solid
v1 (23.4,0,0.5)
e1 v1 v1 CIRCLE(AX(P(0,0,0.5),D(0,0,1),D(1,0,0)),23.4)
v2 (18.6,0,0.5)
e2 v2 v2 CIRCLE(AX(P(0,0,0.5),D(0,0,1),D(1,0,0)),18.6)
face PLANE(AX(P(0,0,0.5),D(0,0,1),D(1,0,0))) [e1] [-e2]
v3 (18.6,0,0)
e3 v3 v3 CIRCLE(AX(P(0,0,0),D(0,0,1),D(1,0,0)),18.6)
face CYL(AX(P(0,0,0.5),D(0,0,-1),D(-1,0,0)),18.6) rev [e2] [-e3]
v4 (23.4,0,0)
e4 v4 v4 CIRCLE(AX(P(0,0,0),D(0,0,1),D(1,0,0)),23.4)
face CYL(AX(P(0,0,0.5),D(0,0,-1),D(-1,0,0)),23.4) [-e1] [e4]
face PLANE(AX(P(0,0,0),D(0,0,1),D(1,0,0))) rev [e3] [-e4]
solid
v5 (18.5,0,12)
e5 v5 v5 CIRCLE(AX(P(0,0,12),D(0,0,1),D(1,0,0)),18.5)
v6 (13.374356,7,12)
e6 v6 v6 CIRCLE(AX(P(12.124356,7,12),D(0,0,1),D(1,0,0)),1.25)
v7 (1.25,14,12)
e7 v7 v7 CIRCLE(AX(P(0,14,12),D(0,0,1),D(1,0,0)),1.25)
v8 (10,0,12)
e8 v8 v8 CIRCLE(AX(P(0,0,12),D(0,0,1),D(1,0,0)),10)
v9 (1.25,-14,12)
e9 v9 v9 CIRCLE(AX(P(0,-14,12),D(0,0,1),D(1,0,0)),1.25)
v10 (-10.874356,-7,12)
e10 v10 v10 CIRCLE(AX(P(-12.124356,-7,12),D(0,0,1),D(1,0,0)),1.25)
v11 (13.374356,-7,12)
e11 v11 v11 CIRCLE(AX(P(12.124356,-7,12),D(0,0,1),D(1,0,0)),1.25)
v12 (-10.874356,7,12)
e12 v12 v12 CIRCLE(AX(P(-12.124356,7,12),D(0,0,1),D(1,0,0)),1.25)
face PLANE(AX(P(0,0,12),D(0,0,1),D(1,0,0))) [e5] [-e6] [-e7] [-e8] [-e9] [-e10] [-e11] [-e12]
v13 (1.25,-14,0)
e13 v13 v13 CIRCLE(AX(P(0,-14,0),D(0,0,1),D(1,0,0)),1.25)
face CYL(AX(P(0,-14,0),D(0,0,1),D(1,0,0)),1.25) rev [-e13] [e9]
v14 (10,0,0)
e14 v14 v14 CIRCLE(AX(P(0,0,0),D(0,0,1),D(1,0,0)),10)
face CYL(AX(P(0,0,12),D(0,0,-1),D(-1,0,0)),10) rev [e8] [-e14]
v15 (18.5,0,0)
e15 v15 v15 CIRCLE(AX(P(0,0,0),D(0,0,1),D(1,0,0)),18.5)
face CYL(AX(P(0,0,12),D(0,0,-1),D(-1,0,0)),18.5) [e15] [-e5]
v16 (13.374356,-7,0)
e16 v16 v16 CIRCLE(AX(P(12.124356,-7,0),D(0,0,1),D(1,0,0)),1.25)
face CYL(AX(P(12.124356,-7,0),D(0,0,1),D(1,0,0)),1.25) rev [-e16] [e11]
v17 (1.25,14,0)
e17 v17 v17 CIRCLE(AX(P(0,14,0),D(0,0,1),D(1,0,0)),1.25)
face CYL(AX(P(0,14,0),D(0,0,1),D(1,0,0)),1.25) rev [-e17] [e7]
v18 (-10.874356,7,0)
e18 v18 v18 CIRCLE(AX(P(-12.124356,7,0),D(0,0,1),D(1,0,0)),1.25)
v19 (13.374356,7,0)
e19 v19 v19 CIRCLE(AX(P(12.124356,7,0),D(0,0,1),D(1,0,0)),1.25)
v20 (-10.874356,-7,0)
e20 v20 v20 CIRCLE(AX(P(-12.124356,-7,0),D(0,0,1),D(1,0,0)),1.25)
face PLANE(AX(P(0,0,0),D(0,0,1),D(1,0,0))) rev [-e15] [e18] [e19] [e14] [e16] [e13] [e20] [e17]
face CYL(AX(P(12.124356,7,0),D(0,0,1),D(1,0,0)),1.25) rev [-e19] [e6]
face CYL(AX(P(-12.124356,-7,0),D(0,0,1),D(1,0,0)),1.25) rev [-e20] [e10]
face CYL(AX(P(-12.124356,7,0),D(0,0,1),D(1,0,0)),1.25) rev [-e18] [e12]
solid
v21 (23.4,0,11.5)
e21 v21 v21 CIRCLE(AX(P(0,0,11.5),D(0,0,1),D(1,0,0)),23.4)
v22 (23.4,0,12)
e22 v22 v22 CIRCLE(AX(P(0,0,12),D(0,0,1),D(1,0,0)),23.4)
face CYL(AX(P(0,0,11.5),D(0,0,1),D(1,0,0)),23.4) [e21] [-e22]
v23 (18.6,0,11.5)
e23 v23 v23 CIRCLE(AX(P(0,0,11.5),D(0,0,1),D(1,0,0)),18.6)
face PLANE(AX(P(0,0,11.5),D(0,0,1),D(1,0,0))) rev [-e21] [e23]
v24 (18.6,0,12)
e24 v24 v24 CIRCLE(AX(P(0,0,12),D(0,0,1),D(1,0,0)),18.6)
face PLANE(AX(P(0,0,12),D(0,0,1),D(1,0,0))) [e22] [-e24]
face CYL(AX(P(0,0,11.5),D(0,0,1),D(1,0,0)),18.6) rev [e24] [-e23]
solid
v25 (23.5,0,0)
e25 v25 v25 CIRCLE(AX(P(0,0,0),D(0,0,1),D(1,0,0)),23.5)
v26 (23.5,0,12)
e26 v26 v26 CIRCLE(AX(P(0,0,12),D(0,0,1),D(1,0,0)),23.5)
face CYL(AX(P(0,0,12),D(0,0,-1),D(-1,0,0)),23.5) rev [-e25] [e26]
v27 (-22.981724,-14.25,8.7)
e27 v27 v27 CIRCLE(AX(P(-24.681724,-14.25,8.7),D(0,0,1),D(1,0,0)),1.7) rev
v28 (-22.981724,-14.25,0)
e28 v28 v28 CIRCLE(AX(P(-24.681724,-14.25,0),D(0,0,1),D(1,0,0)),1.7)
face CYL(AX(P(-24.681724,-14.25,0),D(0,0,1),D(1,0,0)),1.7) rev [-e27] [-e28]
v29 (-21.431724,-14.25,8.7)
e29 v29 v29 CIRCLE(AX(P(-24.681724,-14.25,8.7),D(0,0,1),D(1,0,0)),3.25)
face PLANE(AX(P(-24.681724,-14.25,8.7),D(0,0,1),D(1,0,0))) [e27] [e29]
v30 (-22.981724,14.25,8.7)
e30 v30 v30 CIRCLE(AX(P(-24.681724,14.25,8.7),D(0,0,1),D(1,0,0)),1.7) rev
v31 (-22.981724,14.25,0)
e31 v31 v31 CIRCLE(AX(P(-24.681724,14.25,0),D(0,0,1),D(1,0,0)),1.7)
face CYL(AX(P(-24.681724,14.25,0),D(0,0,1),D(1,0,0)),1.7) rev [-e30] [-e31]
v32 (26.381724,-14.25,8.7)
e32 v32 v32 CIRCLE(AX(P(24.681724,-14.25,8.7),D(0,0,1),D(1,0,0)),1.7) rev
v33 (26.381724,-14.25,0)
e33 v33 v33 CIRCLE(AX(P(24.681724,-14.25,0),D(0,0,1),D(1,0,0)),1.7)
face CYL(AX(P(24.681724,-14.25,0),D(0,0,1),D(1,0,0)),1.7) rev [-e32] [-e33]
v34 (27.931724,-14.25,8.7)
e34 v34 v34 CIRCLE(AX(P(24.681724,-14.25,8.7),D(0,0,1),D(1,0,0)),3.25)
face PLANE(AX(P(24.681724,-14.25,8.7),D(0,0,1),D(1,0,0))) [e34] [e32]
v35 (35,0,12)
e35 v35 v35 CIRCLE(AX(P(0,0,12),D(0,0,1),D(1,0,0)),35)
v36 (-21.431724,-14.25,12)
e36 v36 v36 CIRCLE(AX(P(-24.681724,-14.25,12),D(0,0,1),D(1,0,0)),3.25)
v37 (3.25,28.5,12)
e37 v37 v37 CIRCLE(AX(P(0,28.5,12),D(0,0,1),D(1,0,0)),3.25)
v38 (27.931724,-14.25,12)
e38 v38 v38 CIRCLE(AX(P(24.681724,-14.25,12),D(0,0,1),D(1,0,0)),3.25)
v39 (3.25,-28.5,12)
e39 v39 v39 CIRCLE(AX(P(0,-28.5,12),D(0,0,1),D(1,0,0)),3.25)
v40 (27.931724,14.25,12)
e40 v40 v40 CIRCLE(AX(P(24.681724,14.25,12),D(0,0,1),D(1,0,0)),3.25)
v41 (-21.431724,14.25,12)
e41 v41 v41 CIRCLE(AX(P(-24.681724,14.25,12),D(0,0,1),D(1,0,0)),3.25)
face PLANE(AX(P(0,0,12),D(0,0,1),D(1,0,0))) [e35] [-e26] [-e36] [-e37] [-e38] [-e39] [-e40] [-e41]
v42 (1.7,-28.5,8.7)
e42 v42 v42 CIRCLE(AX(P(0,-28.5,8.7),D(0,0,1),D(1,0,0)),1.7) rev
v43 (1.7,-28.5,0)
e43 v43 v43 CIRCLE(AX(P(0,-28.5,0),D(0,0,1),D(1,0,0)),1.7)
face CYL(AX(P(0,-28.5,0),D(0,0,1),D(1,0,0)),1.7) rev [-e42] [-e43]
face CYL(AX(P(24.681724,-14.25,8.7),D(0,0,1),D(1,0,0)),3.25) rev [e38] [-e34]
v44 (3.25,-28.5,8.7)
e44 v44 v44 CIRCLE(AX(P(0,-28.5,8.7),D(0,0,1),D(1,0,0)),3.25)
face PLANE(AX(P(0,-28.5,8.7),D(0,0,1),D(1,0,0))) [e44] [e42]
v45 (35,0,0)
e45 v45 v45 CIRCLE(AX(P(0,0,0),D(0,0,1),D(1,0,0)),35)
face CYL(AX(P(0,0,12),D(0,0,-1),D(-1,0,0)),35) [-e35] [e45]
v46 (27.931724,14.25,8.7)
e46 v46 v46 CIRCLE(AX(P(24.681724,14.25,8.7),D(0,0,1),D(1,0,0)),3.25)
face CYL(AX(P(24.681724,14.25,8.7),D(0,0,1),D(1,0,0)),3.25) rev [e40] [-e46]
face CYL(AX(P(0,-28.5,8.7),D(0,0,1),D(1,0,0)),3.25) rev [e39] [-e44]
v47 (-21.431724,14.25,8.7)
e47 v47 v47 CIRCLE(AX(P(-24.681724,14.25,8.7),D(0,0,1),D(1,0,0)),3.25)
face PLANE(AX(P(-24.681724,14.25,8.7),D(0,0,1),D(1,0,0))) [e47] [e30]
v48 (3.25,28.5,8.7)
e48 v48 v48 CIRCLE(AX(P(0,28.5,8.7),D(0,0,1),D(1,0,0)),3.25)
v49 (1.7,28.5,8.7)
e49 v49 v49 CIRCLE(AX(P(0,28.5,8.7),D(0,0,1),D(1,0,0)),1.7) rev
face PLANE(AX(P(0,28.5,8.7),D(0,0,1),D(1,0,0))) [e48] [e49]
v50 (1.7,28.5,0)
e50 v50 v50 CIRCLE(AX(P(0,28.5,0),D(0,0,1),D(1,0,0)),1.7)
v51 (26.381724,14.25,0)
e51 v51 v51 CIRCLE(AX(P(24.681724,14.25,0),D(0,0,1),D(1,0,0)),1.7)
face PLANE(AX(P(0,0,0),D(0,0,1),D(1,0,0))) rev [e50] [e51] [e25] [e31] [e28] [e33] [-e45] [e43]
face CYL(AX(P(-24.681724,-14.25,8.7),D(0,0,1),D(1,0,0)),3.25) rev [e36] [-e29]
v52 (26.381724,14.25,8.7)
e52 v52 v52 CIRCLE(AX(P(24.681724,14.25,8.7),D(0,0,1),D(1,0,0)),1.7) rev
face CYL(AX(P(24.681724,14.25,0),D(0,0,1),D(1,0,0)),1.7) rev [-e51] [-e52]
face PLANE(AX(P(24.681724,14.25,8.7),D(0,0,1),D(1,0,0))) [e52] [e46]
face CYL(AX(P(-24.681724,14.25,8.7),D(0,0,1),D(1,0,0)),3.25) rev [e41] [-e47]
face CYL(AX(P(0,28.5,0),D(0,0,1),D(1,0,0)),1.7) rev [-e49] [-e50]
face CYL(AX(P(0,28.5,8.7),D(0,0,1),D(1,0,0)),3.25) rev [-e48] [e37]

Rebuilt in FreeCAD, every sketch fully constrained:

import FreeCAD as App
import Part
import Sketcher

V = App.Vector

doc = App.newDocument("Part")
body = doc.addObject("PartDesign::Body", "Body")

# Sketch on XY plane
sketch1 = doc.addObject("Sketcher::SketchObject", "Sketch")
body.addObject(sketch1)
sketch1.AttachmentSupport = (doc.XY_Plane, [""])
sketch1.MapMode = "FlatFace"
sketch1.addGeometry([
    Part.Circle(V(0, 0, 0), V(0, 0, 1), 18),
    Part.Circle(V(0, 0, 0), V(0, 0, 1), 10),
], False)
sketch1.addConstraint([
    Sketcher.Constraint("Coincident", 0, 3, -1, 1),
    Sketcher.Constraint("Coincident", 1, 3, -1, 1),
    Sketcher.Constraint("Diameter", 0, 37.0),
    Sketcher.Constraint("Diameter", 1, 20.0),
])
pad1 = doc.addObject("PartDesign::Pad", "Pad")
body.addObject(pad1)
pad1.Profile = sketch1
pad1.Length = 12

# Sketch on XY plane
sketch2 = doc.addObject("Sketcher::SketchObject", "Sketch001")
body.addObject(sketch2)
sketch2.AttachmentSupport = (doc.XY_Plane, [""])
sketch2.MapMode = "FlatFace"
sketch2.AttachmentOffset = App.Placement(V(0, 0, 12), App.Rotation())
sketch2.addGeometry([
    Part.Circle(V(12.1, 7, 0), V(0, 0, 1), 1.2),  # 0
    Part.Circle(V(0, 14, 0), V(0, 0, 1), 1.2),  # 1
    Part.Circle(V(-12.1, 7, 0), V(0, 0, 1), 1.2),  # 2
    Part.Circle(V(-12.1, -7, 0), V(0, 0, 1), 1.2),  # 3
    Part.Circle(V(0, -14, 0), V(0, 0, 1), 1.2),  # 4
    Part.Circle(V(12.1, -7, 0), V(0, 0, 1), 1.2),  # 5
], False)
sketch2.addConstraint([
    Sketcher.Constraint("Equal", 0, 1),
    Sketcher.Constraint("Equal", 1, 2),
    Sketcher.Constraint("Equal", 2, 3),
    Sketcher.Constraint("Equal", 3, 4),
    Sketcher.Constraint("Equal", 4, 5),
    Sketcher.Constraint("Symmetric", 0, 3, 3, 3, -1, 1),
    Sketcher.Constraint("Symmetric", 1, 3, 4, 3, -1, 1),
    Sketcher.Constraint("Symmetric", 2, 3, 5, 3, -1, 1),
    Sketcher.Constraint("Symmetric", 0, 3, 2, 3, -2),
    Sketcher.Constraint("PointOnObject", 1, 3, -2),
    Sketcher.Constraint("Diameter", 0, 2.5),
    Sketcher.Constraint("DistanceY", -1, 1, 0, 3, 7.0),
    Sketcher.Constraint("DistanceY", -1, 1, 1, 3, 14.0),
    Sketcher.Constraint("DistanceX", 2, 3, 0, 3, 24.248711),
])
pocket1 = doc.addObject("PartDesign::Pocket", "Pocket")
body.addObject(pocket1)
pocket1.Profile = sketch2
pocket1.Length = 12
body2 = doc.addObject("PartDesign::Body", "Body001")

# Sketch on XY plane
sketch3 = doc.addObject("Sketcher::SketchObject", "Sketch002")
body2.addObject(sketch3)
sketch3.AttachmentSupport = (doc.getObject("XY_Plane001"), [""])
sketch3.MapMode = "FlatFace"
sketch3.addGeometry([
    Part.Circle(V(0, 0, 0), V(0, 0, 1), 35),
    Part.Circle(V(0, 0, 0), V(0, 0, 1), 24),
], False)
sketch3.addConstraint([
    Sketcher.Constraint("Coincident", 0, 3, -1, 1),
    Sketcher.Constraint("Coincident", 1, 3, -1, 1),
    Sketcher.Constraint("Diameter", 0, 70.0),
    Sketcher.Constraint("Diameter", 1, 47.0),
])
pad2 = doc.addObject("PartDesign::Pad", "Pad001")
body2.addObject(pad2)
pad2.Profile = sketch3
pad2.Length = 12

# Sketch on XY plane
sketch4 = doc.addObject("Sketcher::SketchObject", "Sketch003")
body2.addObject(sketch4)
sketch4.AttachmentSupport = (doc.getObject("XY_Plane001"), [""])
sketch4.MapMode = "FlatFace"
sketch4.AttachmentOffset = App.Placement(V(0, 0, 12), App.Rotation())
sketch4.addGeometry([
    Part.Circle(V(24.7, 14.2, 0), V(0, 0, 1), 1.7),  # 0
    Part.Circle(V(0, 28.5, 0), V(0, 0, 1), 1.7),  # 1
    Part.Circle(V(-24.7, 14.2, 0), V(0, 0, 1), 1.7),  # 2
    Part.Circle(V(-24.7, -14.2, 0), V(0, 0, 1), 1.7),  # 3
    Part.Circle(V(0, -28.5, 0), V(0, 0, 1), 1.7),  # 4
    Part.Circle(V(24.7, -14.2, 0), V(0, 0, 1), 1.7),  # 5
], False)
sketch4.addConstraint([
    Sketcher.Constraint("Equal", 0, 1),
    Sketcher.Constraint("Equal", 1, 2),
    Sketcher.Constraint("Equal", 2, 3),
    Sketcher.Constraint("Equal", 3, 4),
    Sketcher.Constraint("Equal", 4, 5),
    Sketcher.Constraint("Symmetric", 0, 3, 3, 3, -1, 1),
    Sketcher.Constraint("Symmetric", 1, 3, 4, 3, -1, 1),
    Sketcher.Constraint("Symmetric", 2, 3, 5, 3, -1, 1),
    Sketcher.Constraint("Symmetric", 0, 3, 2, 3, -2),
    Sketcher.Constraint("PointOnObject", 1, 3, -2),
    Sketcher.Constraint("Diameter", 0, 3.4),
    Sketcher.Constraint("DistanceY", 4, 3, 1, 3, 57.0),
    Sketcher.Constraint("DistanceY", 3, 3, 2, 3, 28.5),
    Sketcher.Constraint("DistanceX", 2, 3, 0, 3, 49.363448),
])
pocket2 = doc.addObject("PartDesign::Pocket", "Pocket001")
body2.addObject(pocket2)
pocket2.Profile = sketch4
pocket2.Length = 12

# Sketch on XY plane
sketch5 = doc.addObject("Sketcher::SketchObject", "Sketch004")
body2.addObject(sketch5)
sketch5.AttachmentSupport = (doc.getObject("XY_Plane001"), [""])
sketch5.MapMode = "FlatFace"
sketch5.AttachmentOffset = App.Placement(V(0, 0, 12), App.Rotation())
sketch5.addGeometry([
    Part.Circle(V(24.7, 14.2, 0), V(0, 0, 1), 3.2),  # 0
    Part.Circle(V(0, 28.5, 0), V(0, 0, 1), 3.2),  # 1
    Part.Circle(V(-24.7, 14.2, 0), V(0, 0, 1), 3.2),  # 2
    Part.Circle(V(-24.7, -14.2, 0), V(0, 0, 1), 3.2),  # 3
    Part.Circle(V(0, -28.5, 0), V(0, 0, 1), 3.2),  # 4
    Part.Circle(V(24.7, -14.2, 0), V(0, 0, 1), 3.2),  # 5
], False)
sketch5.addConstraint([
    Sketcher.Constraint("Equal", 0, 1),
    Sketcher.Constraint("Equal", 1, 2),
    Sketcher.Constraint("Equal", 2, 3),
    Sketcher.Constraint("Equal", 3, 4),
    Sketcher.Constraint("Equal", 4, 5),
    Sketcher.Constraint("Symmetric", 0, 3, 3, 3, -1, 1),
    Sketcher.Constraint("Symmetric", 1, 3, 4, 3, -1, 1),
    Sketcher.Constraint("Symmetric", 2, 3, 5, 3, -1, 1),
    Sketcher.Constraint("Symmetric", 0, 3, 2, 3, -2),
    Sketcher.Constraint("PointOnObject", 1, 3, -2),
    Sketcher.Constraint("Diameter", 0, 6.5),
    Sketcher.Constraint("DistanceY", 4, 3, 1, 3, 57.0),
    Sketcher.Constraint("DistanceY", 3, 3, 2, 3, 28.5),
    Sketcher.Constraint("DistanceX", 2, 3, 0, 3, 49.363448),
])
pocket3 = doc.addObject("PartDesign::Pocket", "Pocket002")
body2.addObject(pocket3)
pocket3.Profile = sketch5
pocket3.Length = 3.3
body3 = doc.addObject("PartDesign::Body", "Body002")

# Sketch on XY plane
sketch6 = doc.addObject("Sketcher::SketchObject", "Sketch005")
body3.addObject(sketch6)
sketch6.AttachmentSupport = (doc.getObject("XY_Plane002"), [""])
sketch6.MapMode = "FlatFace"
sketch6.addGeometry([
    Part.Circle(V(0, 0, 0), V(0, 0, 1), 23),
    Part.Circle(V(0, 0, 0), V(0, 0, 1), 19),
], False)
sketch6.addConstraint([
    Sketcher.Constraint("Coincident", 0, 3, -1, 1),
    Sketcher.Constraint("Coincident", 1, 3, -1, 1),
    Sketcher.Constraint("Diameter", 0, 46.8),
    Sketcher.Constraint("Diameter", 1, 37.2),
])
pad3 = doc.addObject("PartDesign::Pad", "Pad002")
body3.addObject(pad3)
pad3.Profile = sketch6
pad3.Length = 0.5
body4 = doc.addObject("PartDesign::Body", "Body003")

# Sketch on XY plane
sketch7 = doc.addObject("Sketcher::SketchObject", "Sketch006")
body4.addObject(sketch7)
sketch7.AttachmentSupport = (doc.getObject("XY_Plane003"), [""])
sketch7.MapMode = "FlatFace"
sketch7.AttachmentOffset = App.Placement(V(0, 0, 12), App.Rotation())
sketch7.addGeometry([
    Part.Circle(V(0, 0, 0), V(0, 0, 1), 23),
    Part.Circle(V(0, 0, 0), V(0, 0, 1), 19),
], False)
sketch7.addConstraint([
    Sketcher.Constraint("Coincident", 0, 3, -1, 1),
    Sketcher.Constraint("Coincident", 1, 3, -1, 1),
    Sketcher.Constraint("Diameter", 0, 46.8),
    Sketcher.Constraint("Diameter", 1, 37.2),
])
pad4 = doc.addObject("PartDesign::Pad", "Pad003")
body4.addObject(pad4)
pad4.Profile = sketch7
pad4.Length = 0.5
pad4.Reversed = True

doc.recompute()
